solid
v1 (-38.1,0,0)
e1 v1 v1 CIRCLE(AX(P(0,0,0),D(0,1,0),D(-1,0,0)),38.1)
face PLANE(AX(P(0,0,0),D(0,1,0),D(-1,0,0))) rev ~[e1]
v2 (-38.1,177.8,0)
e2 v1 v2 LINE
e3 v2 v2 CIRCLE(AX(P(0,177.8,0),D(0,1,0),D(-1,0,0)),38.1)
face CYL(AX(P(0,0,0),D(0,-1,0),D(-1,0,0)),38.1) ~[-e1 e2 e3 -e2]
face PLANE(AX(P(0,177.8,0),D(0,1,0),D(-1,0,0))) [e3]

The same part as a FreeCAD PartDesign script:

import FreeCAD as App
import Part
import Sketcher
from FreeCAD import Vector
Q = App.Units.Quantity

doc = App.newDocument("Part")
params = doc.addObject("Spreadsheet::Sheet", "Params")
for row, (alias, value) in enumerate([
    ("sketch1_diameter", "3 in"),
    ("pad1_length", "7 in"),
], start=1):
    params.set(f"A{row}", alias)
    params.set(f"B{row}", "=" + value)
    params.setAlias(f"B{row}", alias)

body = doc.addObject("PartDesign::Body", "Body")

sketch1 = body.newObject("Sketcher::SketchObject", "Sketch")
sketch1.AttachmentSupport = (doc.getObject("XZ_Plane"), [""])
sketch1.MapMode = "FlatFace"
sketch1.addGeometry(Part.Circle(Vector(0, 0, 0), Vector(0, 0, 1), 38), False)
sketch1.addConstraint(Sketcher.Constraint("Coincident", 0, 3, -1, 1))
sketch1.addConstraint(Sketcher.Constraint("Diameter", 0, Q("3 in")))
sketch1.setExpression("Constraints[1]", "Params.sketch1_diameter")
pad1 = body.newObject("PartDesign::Pad", "Pad")
pad1.Profile = sketch1
pad1.setExpression("Length", "Params.pad1_length")
pad1.Reversed = True

doc.recompute()
